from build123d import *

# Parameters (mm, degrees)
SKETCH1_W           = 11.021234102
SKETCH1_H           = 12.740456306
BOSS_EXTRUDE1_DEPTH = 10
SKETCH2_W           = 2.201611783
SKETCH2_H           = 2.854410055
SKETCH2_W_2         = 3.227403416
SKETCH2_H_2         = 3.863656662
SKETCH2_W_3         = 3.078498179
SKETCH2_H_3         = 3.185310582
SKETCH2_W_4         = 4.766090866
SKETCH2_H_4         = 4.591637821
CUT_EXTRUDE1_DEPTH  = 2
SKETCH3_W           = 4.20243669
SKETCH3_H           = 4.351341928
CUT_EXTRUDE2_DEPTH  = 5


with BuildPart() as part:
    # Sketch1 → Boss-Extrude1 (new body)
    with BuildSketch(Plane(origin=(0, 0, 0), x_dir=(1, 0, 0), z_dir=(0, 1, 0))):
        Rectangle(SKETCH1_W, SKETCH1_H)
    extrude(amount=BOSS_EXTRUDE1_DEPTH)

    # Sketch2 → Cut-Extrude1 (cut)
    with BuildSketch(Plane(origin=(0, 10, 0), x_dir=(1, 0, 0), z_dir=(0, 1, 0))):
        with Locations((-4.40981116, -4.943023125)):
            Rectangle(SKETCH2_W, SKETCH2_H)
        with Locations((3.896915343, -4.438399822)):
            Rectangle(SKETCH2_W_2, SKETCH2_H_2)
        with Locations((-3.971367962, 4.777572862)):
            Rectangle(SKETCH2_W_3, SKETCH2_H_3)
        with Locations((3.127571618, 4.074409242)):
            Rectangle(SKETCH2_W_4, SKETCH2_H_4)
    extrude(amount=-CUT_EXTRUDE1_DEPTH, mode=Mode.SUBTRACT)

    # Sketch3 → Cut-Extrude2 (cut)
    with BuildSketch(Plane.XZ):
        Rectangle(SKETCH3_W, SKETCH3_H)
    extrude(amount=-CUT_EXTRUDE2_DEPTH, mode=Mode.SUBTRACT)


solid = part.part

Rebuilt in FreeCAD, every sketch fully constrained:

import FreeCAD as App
import Part
import Sketcher
from FreeCAD import Vector


def add_polygon(sketch, points):
    """Adds a closed chain of lines whose ends are joined by coincident constraints."""
    first, n = sketch.GeometryCount, len(points)
    for a, b in zip(points, points[1:] + points[:1]):
        sketch.addGeometry(Part.LineSegment(App.Vector(*a, 0), App.Vector(*b, 0)), False)
    for i in range(n):
        sketch.addConstraint(Sketcher.Constraint("Coincident", first + i, 2, first + (i + 1) % n, 1))

doc = App.newDocument("Part")
body = doc.addObject("PartDesign::Body", "Body")

# Sketch on XZ plane
sketch1 = body.newObject("Sketcher::SketchObject", "Sketch")
sketch1.AttachmentSupport = (doc.getObject("XZ_Plane"), [""])
sketch1.MapMode = "FlatFace"
add_polygon(sketch1, [(-5.510617, -6.370228), (-5.510617, 6.370228), (5.510617, 6.370228), (5.510617, -6.370228)])  # lines 0-3
sketch1.addConstraint([
    Sketcher.Constraint("Vertical", 0),
    Sketcher.Constraint("Horizontal", 1),
    Sketcher.Constraint("Vertical", 2),
    Sketcher.Constraint("Horizontal", 3),
    Sketcher.Constraint("Symmetric", 0, 2, 2, 2, -1, 1),
    Sketcher.Constraint("DistanceX", 1, 1, 1, 2, 11.021234),
    Sketcher.Constraint("DistanceY", 0, 1, 0, 2, 12.740456),
])
pad1 = body.newObject("PartDesign::Pad", "Pad")
pad1.Profile = sketch1
pad1.Length = 10
pad1.Reversed = True

# Sketch on XZ plane
sketch2 = body.newObject("Sketcher::SketchObject", "Sketch001")
sketch2.AttachmentSupport = (doc.getObject("XZ_Plane"), [""])
sketch2.MapMode = "FlatFace"
sketch2.AttachmentOffset = App.Placement(Vector(0, 0, -10), App.Rotation())
add_polygon(sketch2, [(-5.510617, 3.515818), (-5.510617, 6.370228), (-3.309005, 6.370228), (-3.309005, 3.515818)])  # lines 0-3
add_polygon(sketch2, [(2.283214, 2.506571), (2.283214, 6.370228), (5.510617, 6.370228), (5.510617, 2.506571)])  # lines 4-7
add_polygon(sketch2, [(-5.510617, -6.370228), (-5.510617, -3.184918), (-2.432119, -3.184918), (-2.432119, -6.370228)])  # lines 8-11
add_polygon(sketch2, [(0.744526, -6.370228), (0.744526, -1.77859), (5.510617, -1.77859), (5.510617, -6.370228)])  # lines 12-15
sketch2.addConstraint([
    Sketcher.Constraint("Vertical", 0),
    Sketcher.Constraint("Horizontal", 1),
    Sketcher.Constraint("Vertical", 2),
    Sketcher.Constraint("Horizontal", 3),
    Sketcher.Constraint("Vertical", 4),
    Sketcher.Constraint("Horizontal", 5),
    Sketcher.Constraint("Vertical", 6),
    Sketcher.Constraint("Horizontal", 7),
    Sketcher.Constraint("Vertical", 8),
    Sketcher.Constraint("Horizontal", 9),
    Sketcher.Constraint("Vertical", 10),
    Sketcher.Constraint("Horizontal", 11),
    Sketcher.Constraint("Vertical", 12),
    Sketcher.Constraint("Horizontal", 13),
    Sketcher.Constraint("Vertical", 14),
    Sketcher.Constraint("Horizontal", 15),
    Sketcher.Constraint("Symmetric", 5, 2, 11, 2, -1, 1),
    Sketcher.Constraint("Symmetric", 0, 2, 14, 2, -1, 1),
    Sketcher.Constraint("Symmetric", 0, 2, 5, 2, -2),
    Sketcher.Constraint("DistanceX", 9, 1, 9, 2, 3.078498),
    Sketcher.Constraint("DistanceX", 1, 1, 1, 2, 2.201612),
    Sketcher.Constraint("DistanceX", 13, 1, 13, 2, 4.766091),
    Sketcher.Constraint("DistanceY", 0, 1, 0, 2, 2.85441),
    Sketcher.Constraint("DistanceY", 8, 1, 8, 2, 3.185311),
    Sketcher.Constraint("DistanceY", 10, 2, 7, 2, 8.8768),
    Sketcher.Constraint("DistanceX", 5, 1, 5, 2, 3.227403),
    Sketcher.Constraint("DistanceY", 4, 1, 4, 2, 3.863657),
    Sketcher.Constraint("DistanceY", 12, 1, 12, 2, 4.591638),
    Sketcher.Constraint("DistanceX", 9, 2, -1, 1, 2.432119),
])
pocket1 = body.newObject("PartDesign::Pocket", "Pocket")
pocket1.Profile = sketch2
pocket1.Length = 2
pocket1.Reversed = True

# Sketch on XZ plane
sketch3 = body.newObject("Sketcher::SketchObject", "Sketch002")
sketch3.AttachmentSupport = (doc.getObject("XZ_Plane"), [""])
sketch3.MapMode = "FlatFace"
add_polygon(sketch3, [(-2.101218, 2.175671), (-2.101218, -2.175671), (2.101218, -2.175671), (2.101218, 2.175671)])  # lines 0-3
sketch3.addConstraint([
    Sketcher.Constraint("Vertical", 0),
    Sketcher.Constraint("Horizontal", 1),
    Sketcher.Constraint("Vertical", 2),
    Sketcher.Constraint("Horizontal", 3),
    Sketcher.Constraint("Symmetric", 0, 2, 2, 2, -1, 1),
    Sketcher.Constraint("DistanceY", 0, 2, 0, 1, 4.351342),
    Sketcher.Constraint("DistanceX", 1, 1, 1, 2, 4.202437),
])
pocket2 = body.newObject("PartDesign::Pocket", "Pocket001")
pocket2.Profile = sketch3
pocket2.Length = 5

doc.recompute()
